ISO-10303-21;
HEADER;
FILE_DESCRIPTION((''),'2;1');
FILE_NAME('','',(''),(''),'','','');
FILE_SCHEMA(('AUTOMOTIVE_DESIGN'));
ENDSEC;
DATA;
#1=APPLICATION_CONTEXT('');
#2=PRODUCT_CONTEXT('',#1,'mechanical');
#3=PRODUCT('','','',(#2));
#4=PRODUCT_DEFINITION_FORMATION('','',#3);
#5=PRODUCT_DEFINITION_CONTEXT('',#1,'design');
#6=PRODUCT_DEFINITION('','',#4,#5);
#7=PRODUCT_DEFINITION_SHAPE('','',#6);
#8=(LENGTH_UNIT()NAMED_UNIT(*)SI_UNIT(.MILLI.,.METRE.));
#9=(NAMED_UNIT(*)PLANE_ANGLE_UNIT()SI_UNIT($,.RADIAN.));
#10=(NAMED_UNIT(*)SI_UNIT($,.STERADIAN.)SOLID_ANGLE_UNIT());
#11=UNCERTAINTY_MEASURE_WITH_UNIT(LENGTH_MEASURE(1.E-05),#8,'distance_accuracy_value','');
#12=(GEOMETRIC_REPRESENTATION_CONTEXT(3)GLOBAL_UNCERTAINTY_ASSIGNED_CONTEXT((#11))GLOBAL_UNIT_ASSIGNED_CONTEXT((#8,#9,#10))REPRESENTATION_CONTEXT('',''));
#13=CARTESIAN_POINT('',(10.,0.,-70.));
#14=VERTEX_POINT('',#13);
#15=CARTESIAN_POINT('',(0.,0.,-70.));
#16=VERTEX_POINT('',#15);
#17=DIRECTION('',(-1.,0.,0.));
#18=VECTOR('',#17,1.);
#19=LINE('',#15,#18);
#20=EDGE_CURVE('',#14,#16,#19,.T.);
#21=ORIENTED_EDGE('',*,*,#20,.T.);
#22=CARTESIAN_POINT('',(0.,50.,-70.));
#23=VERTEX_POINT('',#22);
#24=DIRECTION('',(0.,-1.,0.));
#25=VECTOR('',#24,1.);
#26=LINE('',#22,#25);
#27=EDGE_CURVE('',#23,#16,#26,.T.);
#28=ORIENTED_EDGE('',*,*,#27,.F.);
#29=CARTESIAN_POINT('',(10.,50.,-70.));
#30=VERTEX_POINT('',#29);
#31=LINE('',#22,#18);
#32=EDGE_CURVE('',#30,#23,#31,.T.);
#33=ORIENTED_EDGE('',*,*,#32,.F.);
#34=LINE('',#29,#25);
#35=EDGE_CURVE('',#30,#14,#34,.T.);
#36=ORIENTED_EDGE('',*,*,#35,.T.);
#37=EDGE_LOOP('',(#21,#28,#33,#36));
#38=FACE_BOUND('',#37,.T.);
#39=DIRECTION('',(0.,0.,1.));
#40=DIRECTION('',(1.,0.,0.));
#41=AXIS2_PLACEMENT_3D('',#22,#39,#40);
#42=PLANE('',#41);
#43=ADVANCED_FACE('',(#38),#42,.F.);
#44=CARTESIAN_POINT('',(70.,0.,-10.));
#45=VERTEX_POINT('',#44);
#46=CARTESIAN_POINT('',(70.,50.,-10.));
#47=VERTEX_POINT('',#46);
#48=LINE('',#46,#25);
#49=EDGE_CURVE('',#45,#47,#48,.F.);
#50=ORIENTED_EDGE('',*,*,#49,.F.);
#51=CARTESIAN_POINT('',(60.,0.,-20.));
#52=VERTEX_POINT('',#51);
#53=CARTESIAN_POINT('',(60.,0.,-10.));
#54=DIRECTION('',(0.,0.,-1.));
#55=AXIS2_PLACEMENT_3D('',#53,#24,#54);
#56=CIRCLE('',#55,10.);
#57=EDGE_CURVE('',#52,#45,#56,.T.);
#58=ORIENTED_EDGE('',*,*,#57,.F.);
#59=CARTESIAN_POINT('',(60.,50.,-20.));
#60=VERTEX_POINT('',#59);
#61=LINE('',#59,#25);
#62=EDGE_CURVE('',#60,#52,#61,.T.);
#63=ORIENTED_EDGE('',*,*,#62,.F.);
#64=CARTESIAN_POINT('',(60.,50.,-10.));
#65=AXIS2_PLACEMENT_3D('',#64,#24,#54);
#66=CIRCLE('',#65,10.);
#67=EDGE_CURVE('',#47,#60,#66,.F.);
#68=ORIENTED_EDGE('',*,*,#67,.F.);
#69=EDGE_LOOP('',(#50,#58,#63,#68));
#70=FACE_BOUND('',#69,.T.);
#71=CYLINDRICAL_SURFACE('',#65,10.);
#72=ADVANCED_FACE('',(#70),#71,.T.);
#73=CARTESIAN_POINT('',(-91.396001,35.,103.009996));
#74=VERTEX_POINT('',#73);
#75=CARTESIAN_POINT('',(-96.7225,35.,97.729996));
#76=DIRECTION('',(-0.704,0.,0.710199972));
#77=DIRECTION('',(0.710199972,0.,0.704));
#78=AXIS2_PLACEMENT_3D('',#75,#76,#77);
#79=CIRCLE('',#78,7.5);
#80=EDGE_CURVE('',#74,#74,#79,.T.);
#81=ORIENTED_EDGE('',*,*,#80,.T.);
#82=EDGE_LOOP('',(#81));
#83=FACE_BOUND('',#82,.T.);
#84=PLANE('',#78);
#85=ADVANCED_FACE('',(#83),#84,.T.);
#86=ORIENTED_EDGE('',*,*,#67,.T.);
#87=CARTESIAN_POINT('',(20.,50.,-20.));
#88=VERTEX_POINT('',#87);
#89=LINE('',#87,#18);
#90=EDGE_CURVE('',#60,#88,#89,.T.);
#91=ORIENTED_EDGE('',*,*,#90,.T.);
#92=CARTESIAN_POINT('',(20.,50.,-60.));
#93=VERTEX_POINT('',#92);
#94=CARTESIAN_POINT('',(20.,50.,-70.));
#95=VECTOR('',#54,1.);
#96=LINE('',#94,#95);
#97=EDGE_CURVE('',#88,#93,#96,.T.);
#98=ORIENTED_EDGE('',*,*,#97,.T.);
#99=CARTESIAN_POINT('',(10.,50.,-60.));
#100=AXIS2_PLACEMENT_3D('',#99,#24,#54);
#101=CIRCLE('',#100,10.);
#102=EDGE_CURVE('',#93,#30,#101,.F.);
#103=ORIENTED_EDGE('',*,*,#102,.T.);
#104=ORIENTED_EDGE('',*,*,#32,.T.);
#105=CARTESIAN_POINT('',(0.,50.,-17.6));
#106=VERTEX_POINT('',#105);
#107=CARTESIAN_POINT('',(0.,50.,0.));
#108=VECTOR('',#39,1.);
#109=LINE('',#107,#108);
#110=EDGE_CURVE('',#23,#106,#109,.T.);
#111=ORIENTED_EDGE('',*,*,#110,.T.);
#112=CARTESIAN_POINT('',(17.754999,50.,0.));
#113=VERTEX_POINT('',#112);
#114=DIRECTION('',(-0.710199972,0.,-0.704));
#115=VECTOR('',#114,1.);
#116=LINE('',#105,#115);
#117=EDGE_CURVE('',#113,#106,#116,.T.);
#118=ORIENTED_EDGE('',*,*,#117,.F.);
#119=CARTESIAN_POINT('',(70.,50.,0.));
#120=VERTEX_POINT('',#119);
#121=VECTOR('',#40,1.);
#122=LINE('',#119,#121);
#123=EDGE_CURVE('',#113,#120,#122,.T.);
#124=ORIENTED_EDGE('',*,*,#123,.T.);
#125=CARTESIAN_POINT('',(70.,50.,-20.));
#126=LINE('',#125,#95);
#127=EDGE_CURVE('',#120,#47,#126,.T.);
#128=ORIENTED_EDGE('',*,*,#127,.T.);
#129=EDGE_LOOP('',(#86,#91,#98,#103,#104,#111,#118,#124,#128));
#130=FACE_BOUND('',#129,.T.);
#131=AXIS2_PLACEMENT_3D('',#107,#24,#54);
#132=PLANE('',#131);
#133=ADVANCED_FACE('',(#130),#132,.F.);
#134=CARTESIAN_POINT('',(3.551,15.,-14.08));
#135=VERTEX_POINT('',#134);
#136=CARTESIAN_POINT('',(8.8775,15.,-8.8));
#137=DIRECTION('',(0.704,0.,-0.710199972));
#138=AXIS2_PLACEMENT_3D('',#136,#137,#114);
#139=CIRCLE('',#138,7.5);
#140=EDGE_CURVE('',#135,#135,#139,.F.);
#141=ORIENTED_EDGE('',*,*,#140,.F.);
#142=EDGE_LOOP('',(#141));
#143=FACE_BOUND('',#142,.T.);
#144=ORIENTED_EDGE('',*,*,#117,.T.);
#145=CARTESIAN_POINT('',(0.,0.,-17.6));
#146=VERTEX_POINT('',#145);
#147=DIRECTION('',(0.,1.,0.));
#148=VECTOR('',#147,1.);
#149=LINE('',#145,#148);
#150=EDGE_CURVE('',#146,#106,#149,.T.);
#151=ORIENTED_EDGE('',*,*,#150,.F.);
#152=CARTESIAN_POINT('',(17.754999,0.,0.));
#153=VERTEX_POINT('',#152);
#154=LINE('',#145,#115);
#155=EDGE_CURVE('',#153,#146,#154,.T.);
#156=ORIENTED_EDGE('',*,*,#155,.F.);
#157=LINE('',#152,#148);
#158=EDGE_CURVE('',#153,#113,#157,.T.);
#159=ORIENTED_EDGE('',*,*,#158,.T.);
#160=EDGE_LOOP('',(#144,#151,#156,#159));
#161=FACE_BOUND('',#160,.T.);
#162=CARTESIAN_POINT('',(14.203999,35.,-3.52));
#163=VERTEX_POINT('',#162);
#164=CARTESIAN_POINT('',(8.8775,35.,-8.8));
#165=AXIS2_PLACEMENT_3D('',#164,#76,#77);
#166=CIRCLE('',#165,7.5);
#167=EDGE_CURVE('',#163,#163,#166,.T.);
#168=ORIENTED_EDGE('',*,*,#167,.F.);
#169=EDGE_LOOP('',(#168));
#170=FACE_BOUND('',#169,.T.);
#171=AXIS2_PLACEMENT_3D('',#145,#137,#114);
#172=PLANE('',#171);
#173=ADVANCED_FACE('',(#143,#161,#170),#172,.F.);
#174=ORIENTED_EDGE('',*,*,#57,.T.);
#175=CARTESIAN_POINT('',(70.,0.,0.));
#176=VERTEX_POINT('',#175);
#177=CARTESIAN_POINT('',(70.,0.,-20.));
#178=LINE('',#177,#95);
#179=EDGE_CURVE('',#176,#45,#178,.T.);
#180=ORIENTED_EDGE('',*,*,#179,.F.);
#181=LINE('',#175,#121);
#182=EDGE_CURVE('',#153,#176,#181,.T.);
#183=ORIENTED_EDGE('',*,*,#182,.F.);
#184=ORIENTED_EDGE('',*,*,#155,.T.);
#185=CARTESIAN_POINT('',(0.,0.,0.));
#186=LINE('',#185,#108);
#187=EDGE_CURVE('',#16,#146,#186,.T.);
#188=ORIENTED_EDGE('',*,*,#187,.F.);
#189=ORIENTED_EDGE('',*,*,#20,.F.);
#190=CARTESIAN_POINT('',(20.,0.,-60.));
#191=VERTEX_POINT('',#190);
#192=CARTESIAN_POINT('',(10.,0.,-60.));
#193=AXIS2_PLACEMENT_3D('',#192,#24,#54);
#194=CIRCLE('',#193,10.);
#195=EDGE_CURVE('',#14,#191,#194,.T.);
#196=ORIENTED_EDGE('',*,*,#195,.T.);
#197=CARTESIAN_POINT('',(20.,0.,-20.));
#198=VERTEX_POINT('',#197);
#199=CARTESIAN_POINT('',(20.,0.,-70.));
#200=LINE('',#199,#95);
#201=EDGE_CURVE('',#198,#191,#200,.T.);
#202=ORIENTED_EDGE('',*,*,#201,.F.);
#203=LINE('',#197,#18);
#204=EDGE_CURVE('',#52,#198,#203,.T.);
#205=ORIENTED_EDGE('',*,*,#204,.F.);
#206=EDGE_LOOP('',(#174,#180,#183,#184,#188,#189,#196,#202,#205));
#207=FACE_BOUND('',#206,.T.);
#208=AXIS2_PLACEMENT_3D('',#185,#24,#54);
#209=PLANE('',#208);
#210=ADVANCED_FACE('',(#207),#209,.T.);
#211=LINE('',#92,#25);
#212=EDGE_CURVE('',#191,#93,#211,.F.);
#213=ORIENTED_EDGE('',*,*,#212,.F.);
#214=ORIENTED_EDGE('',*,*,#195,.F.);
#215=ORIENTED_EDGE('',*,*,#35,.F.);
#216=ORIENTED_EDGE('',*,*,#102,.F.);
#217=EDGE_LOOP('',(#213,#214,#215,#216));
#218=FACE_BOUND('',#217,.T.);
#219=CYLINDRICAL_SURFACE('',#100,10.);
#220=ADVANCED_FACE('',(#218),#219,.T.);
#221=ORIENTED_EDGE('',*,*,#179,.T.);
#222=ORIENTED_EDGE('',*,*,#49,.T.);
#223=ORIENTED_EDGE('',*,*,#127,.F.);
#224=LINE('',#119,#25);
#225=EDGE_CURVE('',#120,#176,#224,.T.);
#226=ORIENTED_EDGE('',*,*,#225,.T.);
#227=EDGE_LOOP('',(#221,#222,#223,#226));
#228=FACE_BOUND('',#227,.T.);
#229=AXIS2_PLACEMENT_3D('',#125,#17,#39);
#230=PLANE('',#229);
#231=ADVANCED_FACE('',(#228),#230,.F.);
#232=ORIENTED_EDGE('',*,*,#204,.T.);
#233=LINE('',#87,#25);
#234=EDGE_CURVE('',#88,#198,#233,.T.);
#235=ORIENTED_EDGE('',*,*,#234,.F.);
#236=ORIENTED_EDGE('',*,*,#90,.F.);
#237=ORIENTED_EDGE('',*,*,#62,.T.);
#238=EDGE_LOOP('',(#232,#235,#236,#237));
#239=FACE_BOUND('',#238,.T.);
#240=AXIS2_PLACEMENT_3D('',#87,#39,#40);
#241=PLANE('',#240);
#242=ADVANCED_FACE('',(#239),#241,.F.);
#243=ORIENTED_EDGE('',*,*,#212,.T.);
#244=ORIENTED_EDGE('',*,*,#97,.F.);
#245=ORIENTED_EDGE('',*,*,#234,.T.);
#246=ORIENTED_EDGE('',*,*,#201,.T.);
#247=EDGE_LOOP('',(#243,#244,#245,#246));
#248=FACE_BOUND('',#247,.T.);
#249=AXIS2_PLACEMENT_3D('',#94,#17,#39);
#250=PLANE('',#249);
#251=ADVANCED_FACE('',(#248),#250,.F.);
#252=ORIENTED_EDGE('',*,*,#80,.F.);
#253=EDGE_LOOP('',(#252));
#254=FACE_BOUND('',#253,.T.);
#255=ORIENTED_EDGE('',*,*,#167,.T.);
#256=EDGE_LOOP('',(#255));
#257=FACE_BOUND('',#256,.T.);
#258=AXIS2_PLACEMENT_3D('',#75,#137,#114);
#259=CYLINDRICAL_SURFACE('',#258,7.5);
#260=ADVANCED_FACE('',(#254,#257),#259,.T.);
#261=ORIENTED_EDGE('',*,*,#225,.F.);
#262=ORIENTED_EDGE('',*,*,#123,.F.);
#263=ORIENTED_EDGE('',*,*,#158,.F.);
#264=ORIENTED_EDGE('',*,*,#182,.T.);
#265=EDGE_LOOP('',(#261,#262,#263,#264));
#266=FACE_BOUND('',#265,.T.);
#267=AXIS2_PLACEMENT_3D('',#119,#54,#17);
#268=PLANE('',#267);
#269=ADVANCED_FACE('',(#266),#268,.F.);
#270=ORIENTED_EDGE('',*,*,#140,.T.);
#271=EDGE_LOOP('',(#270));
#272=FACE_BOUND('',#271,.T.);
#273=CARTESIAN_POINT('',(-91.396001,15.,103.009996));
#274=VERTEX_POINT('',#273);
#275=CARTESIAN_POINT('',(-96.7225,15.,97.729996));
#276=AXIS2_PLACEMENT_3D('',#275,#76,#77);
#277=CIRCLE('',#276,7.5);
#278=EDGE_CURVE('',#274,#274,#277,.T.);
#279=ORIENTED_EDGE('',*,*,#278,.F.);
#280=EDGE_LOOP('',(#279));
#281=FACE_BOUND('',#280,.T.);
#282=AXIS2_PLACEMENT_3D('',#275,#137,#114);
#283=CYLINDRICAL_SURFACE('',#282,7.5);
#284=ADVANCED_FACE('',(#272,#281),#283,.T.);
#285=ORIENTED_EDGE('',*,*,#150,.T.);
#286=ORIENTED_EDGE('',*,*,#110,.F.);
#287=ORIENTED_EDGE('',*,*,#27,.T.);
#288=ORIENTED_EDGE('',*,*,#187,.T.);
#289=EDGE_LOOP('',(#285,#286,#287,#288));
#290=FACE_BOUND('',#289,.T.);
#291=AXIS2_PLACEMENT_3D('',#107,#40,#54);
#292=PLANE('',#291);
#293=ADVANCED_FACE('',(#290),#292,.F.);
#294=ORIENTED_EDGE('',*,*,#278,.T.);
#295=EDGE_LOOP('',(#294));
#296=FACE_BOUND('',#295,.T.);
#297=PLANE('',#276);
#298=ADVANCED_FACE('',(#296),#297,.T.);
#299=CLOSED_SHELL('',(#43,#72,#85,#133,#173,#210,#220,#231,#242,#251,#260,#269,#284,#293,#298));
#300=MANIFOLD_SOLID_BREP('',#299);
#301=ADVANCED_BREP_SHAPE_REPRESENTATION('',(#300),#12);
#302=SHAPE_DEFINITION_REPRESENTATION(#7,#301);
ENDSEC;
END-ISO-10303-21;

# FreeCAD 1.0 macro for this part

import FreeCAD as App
import Part
import Sketcher

V = App.Vector
Q = App.Units.Quantity


def edges_at(feature, points):
    """Names of the edges that pass closest to the given points."""
    edges = feature.Shape.Edges
    near = lambda p: min(range(len(edges)), key=lambda i: edges[i].distToShape(Part.Vertex(*p))[0])
    return sorted({f"Edge{near(p) + 1}" for p in points})


def add_polygon(sketch, points):
    """Adds a closed chain of lines whose ends are joined by coincident constraints."""
    first, n = sketch.GeometryCount, len(points)
    for a, b in zip(points, points[1:] + points[:1]):
        sketch.addGeometry(Part.LineSegment(App.Vector(*a, 0), App.Vector(*b, 0)), False)
    for i in range(n):
        sketch.addConstraint(Sketcher.Constraint("Coincident", first + i, 2, first + (i + 1) % n, 1))

doc = App.newDocument("Part")
body = doc.addObject("PartDesign::Body", "Body")

sketch1 = body.newObject("Sketcher::SketchObject", "Sketch")
sketch1.AttachmentSupport = (doc.getObject("XZ_Plane"), [""])
sketch1.MapMode = "FlatFace"
add_polygon(sketch1, [(0, -70), (0, 0), (70, 0), (70, -20), (20, -20), (20, -70)])
sketch1.addConstraint([
    Sketcher.Constraint("Vertical", 0),
    Sketcher.Constraint("Horizontal", 1),
    Sketcher.Constraint("Vertical", 2),
    Sketcher.Constraint("Horizontal", 3),
    Sketcher.Constraint("Vertical", 4),
    Sketcher.Constraint("Horizontal", 5),
    Sketcher.Constraint("Coincident", 0, 2, -1, 1),
    Sketcher.Constraint("Equal", 1, 0),
    Sketcher.Constraint("Equal", 5, 2),
    Sketcher.Constraint("DistanceX", 1, 1, 1, 2, Q("70 mm")),
    Sketcher.Constraint("DistanceX", 3, 2, 3, 1, Q("50 mm")),
])
pad1 = body.newObject("PartDesign::Pad", "Pad")
pad1.Profile = sketch1
pad1.Length = 50
pad1.Reversed = True

sketch2 = body.newObject("Sketcher::SketchObject", "Sketch001")
sketch2.AttachmentSupport = (doc.getObject("XZ_Plane"), [""])
sketch2.MapMode = "FlatFace"
sketch2.AttachmentOffset = App.Placement(V(0, 0, -50), App.Rotation())
add_polygon(sketch2, [(18, 0), (0, -18), (0, 0)])
sketch2.addConstraint([
    Sketcher.Constraint("Vertical", 1),
    Sketcher.Constraint("Horizontal", 2),
    Sketcher.Constraint("Coincident", 1, 2, -1, 1),
    Sketcher.Constraint("Distance", 0, Q("25 mm")),
    Sketcher.Constraint("DistanceY", 1, 1, 1, 2, Q("17.6 mm")),
])
pocket1 = body.newObject("PartDesign::Pocket", "Pocket")
pocket1.Profile = sketch2
pocket1.Length = 50
pocket1.Reversed = True

sketch3 = body.newObject("Sketcher::SketchObject", "Sketch002")
sketch3.Placement = App.Placement(V(8.799662, 0, -8.877158), App.Rotation(V(0.710199972, 0, 0.704), V(0, 1, 0), V(-0.704, 0, 0.710199972), "ZXY"))
sketch3.addGeometry([
    Part.Circle(V(0, 35, 0), V(0, 0, 1), 8),
    Part.Circle(V(0, 15, 0), V(0, 0, 1), 8),
], False)
sketch3.addConstraint([
    Sketcher.Constraint("Equal", 0, 1),
    Sketcher.Constraint("Vertical", 0, 3, 1, 3),
    Sketcher.Constraint("Diameter", 0, Q("15 mm")),
    Sketcher.Constraint("DistanceY", -1, 1, 0, 3, Q("35 mm")),
    Sketcher.Constraint("DistanceY", -1, 1, 1, 3, Q("15 mm")),
    Sketcher.Constraint("DistanceX", -1, 1, 0, 3, Q("0.1096 mm")),
])
pad2 = body.newObject("PartDesign::Pad", "Pad001")
pad2.Profile = sketch3
pad2.Length = 150
doc.recompute()

fillet = body.newObject("PartDesign::Fillet", "Fillet")
fillet.Base = (pad2, edges_at(pad2, [(20, 25, -70), (70, 25, -20)]))
fillet.Radius = 10

doc.recompute()
